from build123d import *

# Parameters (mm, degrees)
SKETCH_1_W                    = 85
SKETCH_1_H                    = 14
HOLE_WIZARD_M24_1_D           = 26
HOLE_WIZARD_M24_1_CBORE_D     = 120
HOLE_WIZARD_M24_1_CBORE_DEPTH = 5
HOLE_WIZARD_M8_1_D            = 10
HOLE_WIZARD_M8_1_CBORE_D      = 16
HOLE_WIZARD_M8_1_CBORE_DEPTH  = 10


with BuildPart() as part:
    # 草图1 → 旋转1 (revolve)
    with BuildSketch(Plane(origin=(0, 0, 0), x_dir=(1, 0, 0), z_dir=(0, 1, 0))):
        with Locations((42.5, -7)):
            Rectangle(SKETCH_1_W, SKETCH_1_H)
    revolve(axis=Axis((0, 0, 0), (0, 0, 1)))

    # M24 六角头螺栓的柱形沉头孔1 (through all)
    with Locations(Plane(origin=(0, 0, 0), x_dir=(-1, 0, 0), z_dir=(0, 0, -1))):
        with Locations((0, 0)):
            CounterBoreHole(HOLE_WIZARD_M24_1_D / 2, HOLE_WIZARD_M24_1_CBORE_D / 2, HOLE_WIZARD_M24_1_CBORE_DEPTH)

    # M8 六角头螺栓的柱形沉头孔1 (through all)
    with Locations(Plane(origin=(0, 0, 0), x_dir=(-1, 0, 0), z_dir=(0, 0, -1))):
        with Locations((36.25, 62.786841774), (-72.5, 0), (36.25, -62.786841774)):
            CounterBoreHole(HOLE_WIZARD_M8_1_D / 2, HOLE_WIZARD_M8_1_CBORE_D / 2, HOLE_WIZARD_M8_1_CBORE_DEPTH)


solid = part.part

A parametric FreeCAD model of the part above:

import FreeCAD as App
import Part
import Sketcher

V = App.Vector
Q = App.Units.Quantity

doc = App.newDocument("Part")
body = doc.addObject("PartDesign::Body", "Body")

# Sketch on XZ plane
sketch1 = body.newObject("Sketcher::SketchObject", "Sketch")
sketch1.AttachmentSupport = (doc.getObject("XZ_Plane"), [""])
sketch1.MapMode = "FlatFace"
sketch1.addGeometry([
    Part.LineSegment(V(0, 0, 0), V(0, 14, 0)),
    Part.LineSegment(V(0, 14, 0), V(85, 14, 0)),
    Part.LineSegment(V(85, 14, 0), V(85, 0, 0)),
    Part.LineSegment(V(85, 0, 0), V(0, 0, 0)),
], False)
sketch1.addConstraint([
    Sketcher.Constraint("Coincident", 0, 2, 1, 1),
    Sketcher.Constraint("Coincident", 1, 2, 2, 1),
    Sketcher.Constraint("Coincident", 2, 2, 3, 1),
    Sketcher.Constraint("Coincident", 3, 2, 0, 1),
    Sketcher.Constraint("Vertical", 0),
    Sketcher.Constraint("Horizontal", 1),
    Sketcher.Constraint("Vertical", 2),
    Sketcher.Constraint("Horizontal", 3),
    Sketcher.Constraint("Coincident", 3, 2, -1, 1),
    Sketcher.Constraint("DistanceX", 1, 1, 1, 2, Q("85 mm")),
    Sketcher.Constraint("DistanceY", 0, 1, 0, 2, Q("14 mm")),
])
revolution = body.newObject("PartDesign::Revolution", "Revolution")
revolution.Profile = sketch1
revolution.ReferenceAxis = (sketch1, ["V_Axis"])
revolution.Angle = 360

# Sketch on XY plane
sketch2 = body.newObject("Sketcher::SketchObject", "Sketch001")
sketch2.AttachmentSupport = (doc.getObject("XY_Plane"), [""])
sketch2.MapMode = "FlatFace"
sketch2.addGeometry(Part.Circle(V(0, 0, 0), V(0, 0, 1), 13), False)
sketch2.addConstraint([
    Sketcher.Constraint("Coincident", 0, 3, -1, 1),
    Sketcher.Constraint("Diameter", 0, Q("26 mm")),
])
doc.recompute()
hole = body.newObject("PartDesign::Hole", "Hole")
hole.Profile = sketch2
hole.ThreadType = "None"
hole.Diameter = 26
hole.DepthType = "ThroughAll"
hole.HoleCutType = "Counterbore"
hole.HoleCutDiameter = 120
hole.HoleCutDepth = 5
hole.Reversed = True

# Sketch on XY plane
sketch3 = body.newObject("Sketcher::SketchObject", "Sketch002")
sketch3.AttachmentSupport = (doc.getObject("XY_Plane"), [""])
sketch3.MapMode = "FlatFace"
sketch3.addGeometry([
    Part.Circle(V(-36, 63, 0), V(0, 0, 1), 5),
    Part.Circle(V(72, 0, 0), V(0, 0, 1), 5),
    Part.Circle(V(-36, -63, 0), V(0, 0, 1), 5),
], False)
sketch3.addConstraint([
    Sketcher.Constraint("Equal", 0, 1),
    Sketcher.Constraint("Equal", 1, 2),
    Sketcher.Constraint("Symmetric", 0, 3, 2, 3, -1),
    Sketcher.Constraint("PointOnObject", 1, 3, -1),
    Sketcher.Constraint("Diameter", 0, Q("10 mm")),
    Sketcher.Constraint("DistanceX", -1, 1, 1, 3, Q("72.5 mm")),
    Sketcher.Constraint("DistanceX", 0, 3, -1, 1, Q("36.25 mm")),
    Sketcher.Constraint("DistanceY", -1, 1, 0, 3, Q("62.786842 mm")),
])
doc.recompute()
hole2 = body.newObject("PartDesign::Hole", "Hole001")
hole2.Profile = sketch3
hole2.ThreadType = "None"
hole2.Diameter = 10
hole2.DepthType = "ThroughAll"
hole2.HoleCutType = "Counterbore"
hole2.HoleCutDiameter = 16
hole2.HoleCutDepth = 10
hole2.Reversed = True

doc.recompute()
